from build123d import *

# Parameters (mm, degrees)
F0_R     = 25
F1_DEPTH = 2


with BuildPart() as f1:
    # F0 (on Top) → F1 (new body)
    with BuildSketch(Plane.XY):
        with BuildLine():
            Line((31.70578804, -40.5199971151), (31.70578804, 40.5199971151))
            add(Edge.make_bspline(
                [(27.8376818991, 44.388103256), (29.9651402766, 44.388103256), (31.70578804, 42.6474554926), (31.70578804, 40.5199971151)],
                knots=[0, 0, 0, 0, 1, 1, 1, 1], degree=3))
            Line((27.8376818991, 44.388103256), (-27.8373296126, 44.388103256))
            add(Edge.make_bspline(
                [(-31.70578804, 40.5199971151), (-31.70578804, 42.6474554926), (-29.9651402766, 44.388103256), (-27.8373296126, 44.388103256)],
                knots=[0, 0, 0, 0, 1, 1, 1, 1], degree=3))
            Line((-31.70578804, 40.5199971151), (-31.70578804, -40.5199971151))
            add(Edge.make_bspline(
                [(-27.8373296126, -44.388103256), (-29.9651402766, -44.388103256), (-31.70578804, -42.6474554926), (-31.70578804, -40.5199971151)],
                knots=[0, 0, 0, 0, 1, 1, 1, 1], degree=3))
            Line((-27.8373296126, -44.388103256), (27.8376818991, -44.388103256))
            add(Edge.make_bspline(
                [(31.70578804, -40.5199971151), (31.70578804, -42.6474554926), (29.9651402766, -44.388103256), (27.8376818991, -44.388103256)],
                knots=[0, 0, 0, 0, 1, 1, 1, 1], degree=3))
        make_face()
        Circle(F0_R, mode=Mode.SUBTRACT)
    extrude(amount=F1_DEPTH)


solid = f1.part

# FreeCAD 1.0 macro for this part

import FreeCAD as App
import Part
import Sketcher

V = App.Vector

doc = App.newDocument("Part")
params = doc.addObject("Spreadsheet::Sheet", "Params")
for row, (alias, value) in enumerate([
    ("sketch1_diameter", "50 mm"),
    ("pad1_length", "2 mm"),
], start=1):
    params.set(f"A{row}", alias)
    params.set(f"B{row}", "=" + value)
    params.setAlias(f"B{row}", alias)

body = doc.addObject("PartDesign::Body", "Body")

sketch1 = doc.addObject("Sketcher::SketchObject", "Sketch")
body.addObject(sketch1)
sketch1.AttachmentSupport = (doc.XY_Plane, [""])
sketch1.MapMode = "FlatFace"
sketch1.addGeometry(Part.LineSegment(V(31.705788, -40.519997, 0), V(31.705788, 40.519997, 0)), False)
sketch1.addGeometry(Part.BSplineCurve([V(27.837682, 44.388103, 0), V(29.96514, 44.388103, 0), V(31.705788, 42.647455, 0), V(31.705788, 40.519997, 0)], [4, 4], [0, 1], False, 3, [1, 1, 1, 1], False), False)
sketch1.addGeometry(Part.LineSegment(V(27.837682, 44.388103, 0), V(-27.83733, 44.388103, 0)), False)
sketch1.addGeometry(Part.BSplineCurve([V(-31.705788, 40.519997, 0), V(-31.705788, 42.647455, 0), V(-29.96514, 44.388103, 0), V(-27.83733, 44.388103, 0)], [4, 4], [0, 1], False, 3, [1, 1, 1, 1], False), False)
sketch1.addGeometry(Part.LineSegment(V(-31.705788, 40.519997, 0), V(-31.705788, -40.519997, 0)), False)
sketch1.addGeometry(Part.BSplineCurve([V(-27.83733, -44.388103, 0), V(-29.96514, -44.388103, 0), V(-31.705788, -42.647455, 0), V(-31.705788, -40.519997, 0)], [4, 4], [0, 1], False, 3, [1, 1, 1, 1], False), False)
sketch1.addGeometry(Part.LineSegment(V(-27.83733, -44.388103, 0), V(27.837682, -44.388103, 0)), False)
sketch1.addGeometry(Part.BSplineCurve([V(31.705788, -40.519997, 0), V(31.705788, -42.647455, 0), V(29.96514, -44.388103, 0), V(27.837682, -44.388103, 0)], [4, 4], [0, 1], False, 3, [1, 1, 1, 1], False), False)
sketch1.addGeometry(Part.Circle(V(0, 0, 0), V(0, 0, 1), 25), False)
sketch1.addConstraint(Sketcher.Constraint("Block", 1))
sketch1.addConstraint(Sketcher.Constraint("Block", 3))
sketch1.addConstraint(Sketcher.Constraint("Block", 5))
sketch1.addConstraint(Sketcher.Constraint("Block", 7))
sketch1.addConstraint(Sketcher.Constraint("Coincident", 0, 2, 1, 2))
sketch1.addConstraint(Sketcher.Constraint("Coincident", 1, 1, 2, 1))
sketch1.addConstraint(Sketcher.Constraint("Coincident", 2, 2, 3, 2))
sketch1.addConstraint(Sketcher.Constraint("Coincident", 3, 1, 4, 1))
sketch1.addConstraint(Sketcher.Constraint("Coincident", 4, 2, 5, 2))
sketch1.addConstraint(Sketcher.Constraint("Coincident", 5, 1, 6, 1))
sketch1.addConstraint(Sketcher.Constraint("Coincident", 6, 2, 7, 2))
sketch1.addConstraint(Sketcher.Constraint("Coincident", 7, 1, 0, 1))
sketch1.addConstraint(Sketcher.Constraint("Coincident", 8, 3, -1, 1))
sketch1.addConstraint(Sketcher.Constraint("Diameter", 8, 50.0))
sketch1.setExpression("Constraints[13]", "Params.sketch1_diameter")
pad1 = doc.addObject("PartDesign::Pad", "Pad")
body.addObject(pad1)
pad1.Profile = sketch1
pad1.setExpression("Length", "Params.pad1_length")

doc.recompute()
